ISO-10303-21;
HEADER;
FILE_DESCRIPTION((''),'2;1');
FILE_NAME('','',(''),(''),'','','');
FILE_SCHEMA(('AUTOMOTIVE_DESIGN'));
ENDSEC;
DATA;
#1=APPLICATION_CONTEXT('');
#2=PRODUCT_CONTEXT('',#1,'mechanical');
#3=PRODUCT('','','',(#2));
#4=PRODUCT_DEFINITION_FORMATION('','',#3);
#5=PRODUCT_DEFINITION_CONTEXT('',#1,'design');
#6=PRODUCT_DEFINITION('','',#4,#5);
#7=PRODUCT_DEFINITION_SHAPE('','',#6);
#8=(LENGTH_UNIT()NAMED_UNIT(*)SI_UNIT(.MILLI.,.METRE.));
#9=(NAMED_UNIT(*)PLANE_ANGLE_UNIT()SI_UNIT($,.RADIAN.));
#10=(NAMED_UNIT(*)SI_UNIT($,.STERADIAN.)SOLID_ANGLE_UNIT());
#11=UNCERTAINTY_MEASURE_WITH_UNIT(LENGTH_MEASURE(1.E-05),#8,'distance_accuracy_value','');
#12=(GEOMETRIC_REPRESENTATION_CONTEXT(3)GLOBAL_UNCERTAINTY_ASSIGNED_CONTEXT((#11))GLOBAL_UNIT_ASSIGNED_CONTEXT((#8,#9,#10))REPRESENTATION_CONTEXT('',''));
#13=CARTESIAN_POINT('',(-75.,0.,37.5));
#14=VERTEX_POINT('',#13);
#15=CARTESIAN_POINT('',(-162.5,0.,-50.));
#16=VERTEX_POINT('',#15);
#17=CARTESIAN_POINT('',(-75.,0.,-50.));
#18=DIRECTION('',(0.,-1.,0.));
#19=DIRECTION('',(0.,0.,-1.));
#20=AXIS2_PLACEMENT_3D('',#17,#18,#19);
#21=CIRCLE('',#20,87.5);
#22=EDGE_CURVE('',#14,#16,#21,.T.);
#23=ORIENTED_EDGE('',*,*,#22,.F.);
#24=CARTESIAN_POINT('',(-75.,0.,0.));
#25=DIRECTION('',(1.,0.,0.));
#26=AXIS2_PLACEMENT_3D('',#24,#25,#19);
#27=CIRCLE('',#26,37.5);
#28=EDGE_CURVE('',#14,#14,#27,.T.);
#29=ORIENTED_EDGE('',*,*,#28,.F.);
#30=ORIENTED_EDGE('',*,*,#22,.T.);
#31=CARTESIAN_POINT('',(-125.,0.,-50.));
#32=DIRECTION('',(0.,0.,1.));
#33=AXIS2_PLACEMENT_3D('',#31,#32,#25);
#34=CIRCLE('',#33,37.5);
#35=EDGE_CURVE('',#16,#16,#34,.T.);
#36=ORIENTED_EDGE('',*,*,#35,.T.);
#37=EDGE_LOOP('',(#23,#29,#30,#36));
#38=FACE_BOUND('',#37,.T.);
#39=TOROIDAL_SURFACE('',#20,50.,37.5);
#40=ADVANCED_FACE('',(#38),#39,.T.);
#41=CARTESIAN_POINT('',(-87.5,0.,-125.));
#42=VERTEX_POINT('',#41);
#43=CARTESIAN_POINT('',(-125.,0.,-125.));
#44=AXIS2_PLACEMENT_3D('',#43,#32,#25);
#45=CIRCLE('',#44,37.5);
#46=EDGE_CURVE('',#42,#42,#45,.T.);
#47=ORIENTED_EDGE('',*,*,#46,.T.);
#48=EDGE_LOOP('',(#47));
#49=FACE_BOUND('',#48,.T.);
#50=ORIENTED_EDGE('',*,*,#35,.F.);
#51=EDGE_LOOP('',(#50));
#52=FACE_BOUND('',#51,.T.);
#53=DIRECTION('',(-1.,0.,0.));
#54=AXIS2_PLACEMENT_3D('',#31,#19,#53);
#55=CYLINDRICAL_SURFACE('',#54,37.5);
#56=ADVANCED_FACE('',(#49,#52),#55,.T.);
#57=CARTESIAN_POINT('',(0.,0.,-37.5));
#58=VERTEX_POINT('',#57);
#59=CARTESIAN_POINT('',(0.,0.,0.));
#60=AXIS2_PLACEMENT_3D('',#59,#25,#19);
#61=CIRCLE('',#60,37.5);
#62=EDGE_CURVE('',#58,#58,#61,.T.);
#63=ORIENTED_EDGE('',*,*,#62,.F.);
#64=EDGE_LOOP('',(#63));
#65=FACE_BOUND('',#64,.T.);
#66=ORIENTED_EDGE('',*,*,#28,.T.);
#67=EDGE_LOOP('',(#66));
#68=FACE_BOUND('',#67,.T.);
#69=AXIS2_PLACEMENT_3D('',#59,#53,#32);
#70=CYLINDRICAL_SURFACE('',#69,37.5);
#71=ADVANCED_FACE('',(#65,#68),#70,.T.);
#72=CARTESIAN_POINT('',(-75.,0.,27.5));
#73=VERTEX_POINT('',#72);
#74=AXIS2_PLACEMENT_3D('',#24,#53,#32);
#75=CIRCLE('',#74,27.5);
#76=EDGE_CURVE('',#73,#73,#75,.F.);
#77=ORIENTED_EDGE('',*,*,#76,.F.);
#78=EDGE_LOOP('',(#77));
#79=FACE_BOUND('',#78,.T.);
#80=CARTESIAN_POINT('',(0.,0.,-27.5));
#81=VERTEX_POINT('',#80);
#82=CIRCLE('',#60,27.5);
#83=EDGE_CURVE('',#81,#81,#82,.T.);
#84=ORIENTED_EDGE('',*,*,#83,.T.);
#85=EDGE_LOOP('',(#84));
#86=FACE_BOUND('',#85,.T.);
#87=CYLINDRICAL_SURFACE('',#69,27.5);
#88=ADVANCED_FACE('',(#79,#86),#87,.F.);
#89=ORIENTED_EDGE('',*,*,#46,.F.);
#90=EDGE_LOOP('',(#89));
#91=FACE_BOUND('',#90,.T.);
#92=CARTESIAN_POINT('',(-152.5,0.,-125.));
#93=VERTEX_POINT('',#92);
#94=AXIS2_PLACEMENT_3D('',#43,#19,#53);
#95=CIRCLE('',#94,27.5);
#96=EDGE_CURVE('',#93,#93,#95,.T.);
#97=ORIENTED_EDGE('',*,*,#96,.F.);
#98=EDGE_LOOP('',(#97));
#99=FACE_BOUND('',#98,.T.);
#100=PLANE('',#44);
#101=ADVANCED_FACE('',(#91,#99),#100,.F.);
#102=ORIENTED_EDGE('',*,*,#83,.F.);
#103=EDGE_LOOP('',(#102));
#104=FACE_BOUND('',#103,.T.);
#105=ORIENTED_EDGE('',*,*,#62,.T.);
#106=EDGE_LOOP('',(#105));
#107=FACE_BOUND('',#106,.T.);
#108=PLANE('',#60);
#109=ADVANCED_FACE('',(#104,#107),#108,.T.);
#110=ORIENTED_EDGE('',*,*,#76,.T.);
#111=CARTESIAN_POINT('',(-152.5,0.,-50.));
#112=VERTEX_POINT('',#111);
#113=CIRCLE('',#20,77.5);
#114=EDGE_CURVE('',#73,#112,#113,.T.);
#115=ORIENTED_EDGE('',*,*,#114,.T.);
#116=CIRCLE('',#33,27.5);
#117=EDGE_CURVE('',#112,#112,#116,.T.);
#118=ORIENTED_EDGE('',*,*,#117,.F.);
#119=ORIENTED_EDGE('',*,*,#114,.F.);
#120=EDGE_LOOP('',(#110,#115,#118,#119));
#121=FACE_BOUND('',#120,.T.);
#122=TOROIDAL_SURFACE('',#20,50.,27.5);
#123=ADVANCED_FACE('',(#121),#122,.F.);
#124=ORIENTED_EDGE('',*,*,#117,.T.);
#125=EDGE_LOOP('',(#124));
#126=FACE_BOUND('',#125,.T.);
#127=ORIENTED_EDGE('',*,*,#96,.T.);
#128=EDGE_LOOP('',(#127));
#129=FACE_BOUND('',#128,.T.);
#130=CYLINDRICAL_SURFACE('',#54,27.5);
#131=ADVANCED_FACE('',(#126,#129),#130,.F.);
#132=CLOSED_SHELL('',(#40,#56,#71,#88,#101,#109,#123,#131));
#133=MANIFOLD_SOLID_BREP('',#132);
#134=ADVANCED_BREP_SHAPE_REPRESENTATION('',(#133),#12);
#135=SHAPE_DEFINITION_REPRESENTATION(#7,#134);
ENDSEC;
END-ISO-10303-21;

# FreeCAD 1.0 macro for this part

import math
import FreeCAD as App
import Part
import Sketcher
Q = App.Units.Quantity


def faces_at(feature, points):
    """Names of the faces that lie closest to the given points."""
    faces = feature.Shape.Faces
    near = lambda p: min(range(len(faces)), key=lambda i: faces[i].distToShape(Part.Vertex(*p))[0])
    return sorted({f"Face{near(p) + 1}" for p in points})

doc = App.newDocument("Part")
body = doc.addObject("PartDesign::Body", "Body")

# Sketch on YZ plane
sketch1 = body.newObject("Sketcher::SketchObject", "Sketch")
sketch1.AttachmentSupport = (doc.getObject("YZ_Plane"), [""])
sketch1.MapMode = "FlatFace"
sketch1.addGeometry(Part.Circle(App.Vector(0, 0, 0), App.Vector(0, 0, 1), 38), False)
sketch1.addConstraint([
    Sketcher.Constraint("Coincident", 0, 3, -1, 1),
    Sketcher.Constraint("Diameter", 0, Q("75 mm")),
])

# Sketch on XZ plane
sketch2 = body.newObject("Sketcher::SketchObject", "Sketch001")
sketch2.AttachmentSupport = (doc.getObject("XZ_Plane"), [""])
sketch2.MapMode = "FlatFace"
sketch2.addGeometry([
    Part.LineSegment(App.Vector(0, 0, 0), App.Vector(-75, 0, 0)),
    Part.ArcOfCircle(Part.Circle(App.Vector(-75, -50, 0), App.Vector(0, 0, 1), 50), math.radians(90), math.radians(180)),
    Part.LineSegment(App.Vector(-125, -50, 0), App.Vector(-125, -125, 0)),
], False)
sketch2.addConstraint([
    Sketcher.Constraint("Tangent", 0, 2, 1, 1),
    Sketcher.Constraint("Tangent", 1, 2, 2, 1),
    Sketcher.Constraint("Horizontal", 0),
    Sketcher.Constraint("Vertical", 2),
    Sketcher.Constraint("Coincident", 0, 1, -1, 1),
    Sketcher.Constraint("Equal", 0, 2),
    Sketcher.Constraint("Radius", 1, Q("50 mm")),
    Sketcher.Constraint("DistanceX", 0, 2, 0, 1, Q("75 mm")),
])
doc.recompute()

additivepipe = body.newObject("PartDesign::AdditivePipe", "AdditivePipe")
additivepipe.Profile = sketch1
additivepipe.Spine = (sketch2, ["Edge1", "Edge2", "Edge3"])
doc.recompute()

thickness = body.newObject("PartDesign::Thickness", "Thickness")
thickness.Base = (additivepipe, faces_at(additivepipe, [(0, 0, 0)]))
thickness.Value = 10
thickness.Reversed = True
thickness.Join = "Intersection"

# Sketch on XY plane
sketch3 = body.newObject("Sketcher::SketchObject", "Sketch002")
sketch3.AttachmentSupport = (doc.getObject("XY_Plane"), [""])
sketch3.MapMode = "FlatFace"
sketch3.AttachmentOffset = App.Placement(App.Vector(0, 0, -125), App.Rotation())
sketch3.addGeometry(Part.Circle(App.Vector(-125, 0, 0), App.Vector(0, 0, 1), 28), False)
sketch3.addConstraint([
    Sketcher.Constraint("PointOnObject", 0, 3, -1),
    Sketcher.Constraint("Diameter", 0, Q("55 mm")),
    Sketcher.Constraint("DistanceX", 0, 3, -1, 1, Q("125 mm")),
])
pocket1 = body.newObject("PartDesign::Pocket", "Pocket")
pocket1.Profile = sketch3
pocket1.Type = "UpToFirst"
pocket1.Reversed = True

doc.recompute()
